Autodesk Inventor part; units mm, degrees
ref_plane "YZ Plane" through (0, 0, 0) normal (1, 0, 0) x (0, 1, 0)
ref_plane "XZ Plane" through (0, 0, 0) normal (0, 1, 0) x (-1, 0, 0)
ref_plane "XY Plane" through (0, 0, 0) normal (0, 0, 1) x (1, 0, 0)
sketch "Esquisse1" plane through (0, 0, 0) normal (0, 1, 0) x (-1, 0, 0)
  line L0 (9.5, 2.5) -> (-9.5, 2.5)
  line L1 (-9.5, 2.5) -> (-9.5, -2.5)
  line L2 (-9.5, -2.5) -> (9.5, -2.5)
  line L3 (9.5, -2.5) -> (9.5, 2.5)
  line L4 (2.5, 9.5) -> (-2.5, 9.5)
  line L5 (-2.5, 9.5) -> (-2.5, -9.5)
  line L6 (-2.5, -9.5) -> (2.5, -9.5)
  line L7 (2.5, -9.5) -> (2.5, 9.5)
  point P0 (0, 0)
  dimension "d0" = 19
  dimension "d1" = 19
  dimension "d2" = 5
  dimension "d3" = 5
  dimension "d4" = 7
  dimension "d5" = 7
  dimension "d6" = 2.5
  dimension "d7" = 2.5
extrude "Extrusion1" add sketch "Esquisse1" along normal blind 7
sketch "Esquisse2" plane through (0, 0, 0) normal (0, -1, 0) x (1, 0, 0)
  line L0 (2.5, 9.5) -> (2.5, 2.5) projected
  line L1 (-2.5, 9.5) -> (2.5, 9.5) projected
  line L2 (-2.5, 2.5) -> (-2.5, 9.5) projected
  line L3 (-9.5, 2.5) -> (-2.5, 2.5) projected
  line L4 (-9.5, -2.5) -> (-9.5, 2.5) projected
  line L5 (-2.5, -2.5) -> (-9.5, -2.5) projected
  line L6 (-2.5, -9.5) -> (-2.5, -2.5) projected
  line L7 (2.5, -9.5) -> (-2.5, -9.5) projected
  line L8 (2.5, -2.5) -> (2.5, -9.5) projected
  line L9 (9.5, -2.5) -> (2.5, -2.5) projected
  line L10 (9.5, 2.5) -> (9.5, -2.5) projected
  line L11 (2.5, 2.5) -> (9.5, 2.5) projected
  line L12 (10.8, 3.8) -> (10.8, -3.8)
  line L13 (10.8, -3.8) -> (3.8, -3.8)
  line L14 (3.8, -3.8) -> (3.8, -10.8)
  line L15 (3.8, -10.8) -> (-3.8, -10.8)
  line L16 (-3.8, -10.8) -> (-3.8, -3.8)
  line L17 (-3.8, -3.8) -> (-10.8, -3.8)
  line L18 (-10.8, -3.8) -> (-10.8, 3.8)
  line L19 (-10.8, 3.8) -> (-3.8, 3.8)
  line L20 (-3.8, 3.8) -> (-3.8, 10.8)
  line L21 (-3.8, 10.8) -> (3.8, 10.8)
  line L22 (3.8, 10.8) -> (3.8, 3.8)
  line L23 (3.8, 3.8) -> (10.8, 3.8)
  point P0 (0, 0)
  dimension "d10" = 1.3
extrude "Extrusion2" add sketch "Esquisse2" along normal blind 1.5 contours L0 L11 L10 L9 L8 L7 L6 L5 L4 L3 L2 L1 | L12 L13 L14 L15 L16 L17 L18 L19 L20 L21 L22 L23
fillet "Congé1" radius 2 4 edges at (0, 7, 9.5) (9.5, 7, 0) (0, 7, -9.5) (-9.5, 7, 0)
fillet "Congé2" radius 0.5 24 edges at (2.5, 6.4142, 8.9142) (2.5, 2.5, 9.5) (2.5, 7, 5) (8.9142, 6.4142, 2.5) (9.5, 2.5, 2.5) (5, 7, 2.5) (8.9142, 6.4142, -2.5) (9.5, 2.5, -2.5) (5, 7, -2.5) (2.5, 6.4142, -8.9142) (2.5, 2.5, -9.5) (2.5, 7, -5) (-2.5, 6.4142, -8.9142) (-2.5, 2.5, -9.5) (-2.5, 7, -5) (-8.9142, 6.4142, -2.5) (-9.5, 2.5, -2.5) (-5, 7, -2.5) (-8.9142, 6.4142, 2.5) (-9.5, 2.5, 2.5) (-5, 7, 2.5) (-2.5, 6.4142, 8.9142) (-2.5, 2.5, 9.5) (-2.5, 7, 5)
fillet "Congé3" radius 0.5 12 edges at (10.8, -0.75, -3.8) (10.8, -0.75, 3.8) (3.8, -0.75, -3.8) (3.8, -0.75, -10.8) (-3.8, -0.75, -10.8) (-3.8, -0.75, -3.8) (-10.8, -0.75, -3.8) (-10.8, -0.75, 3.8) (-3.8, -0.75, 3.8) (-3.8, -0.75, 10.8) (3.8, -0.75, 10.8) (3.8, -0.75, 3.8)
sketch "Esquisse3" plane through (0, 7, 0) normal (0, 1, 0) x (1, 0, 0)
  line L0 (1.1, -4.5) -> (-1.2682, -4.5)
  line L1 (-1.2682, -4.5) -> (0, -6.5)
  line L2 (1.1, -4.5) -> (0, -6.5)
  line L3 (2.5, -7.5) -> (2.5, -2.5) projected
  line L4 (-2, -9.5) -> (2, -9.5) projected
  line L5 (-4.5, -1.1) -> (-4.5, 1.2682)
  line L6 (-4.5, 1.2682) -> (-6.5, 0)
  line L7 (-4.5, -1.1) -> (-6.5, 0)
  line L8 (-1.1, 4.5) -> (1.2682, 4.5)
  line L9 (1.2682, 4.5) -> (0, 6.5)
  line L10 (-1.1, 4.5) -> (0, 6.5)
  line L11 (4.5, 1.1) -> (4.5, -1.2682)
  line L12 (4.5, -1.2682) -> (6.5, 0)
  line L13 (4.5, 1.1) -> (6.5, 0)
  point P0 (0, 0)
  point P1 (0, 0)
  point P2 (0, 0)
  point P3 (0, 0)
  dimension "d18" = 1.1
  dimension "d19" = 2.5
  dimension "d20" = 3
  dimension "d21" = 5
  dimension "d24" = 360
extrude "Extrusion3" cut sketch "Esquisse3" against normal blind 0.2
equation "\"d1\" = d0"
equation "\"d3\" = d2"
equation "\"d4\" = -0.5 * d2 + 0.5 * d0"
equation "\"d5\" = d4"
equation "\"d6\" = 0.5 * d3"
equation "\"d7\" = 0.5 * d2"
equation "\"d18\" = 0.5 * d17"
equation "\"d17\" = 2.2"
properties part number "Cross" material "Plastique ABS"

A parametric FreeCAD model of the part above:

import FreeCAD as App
import Part
import Sketcher


def edges_at(feature, points):
    """Names of the edges that pass closest to the given points."""
    edges = feature.Shape.Edges
    near = lambda p: min(range(len(edges)), key=lambda i: edges[i].distToShape(Part.Vertex(*p))[0])
    return sorted({f"Edge{near(p) + 1}" for p in points})


def add_polygon(sketch, points):
    """Adds a closed chain of lines whose ends are joined by coincident constraints."""
    first, n = sketch.GeometryCount, len(points)
    for a, b in zip(points, points[1:] + points[:1]):
        sketch.addGeometry(Part.LineSegment(App.Vector(*a, 0), App.Vector(*b, 0)), False)
    for i in range(n):
        sketch.addConstraint(Sketcher.Constraint("Coincident", first + i, 2, first + (i + 1) % n, 1))

doc = App.newDocument("Part")
body = doc.addObject("PartDesign::Body", "Body")

# Sketch on XZ plane
sketch1 = body.newObject("Sketcher::SketchObject", "Sketch")
sketch1.AttachmentSupport = (doc.getObject("XZ_Plane"), [""])
sketch1.MapMode = "FlatFace"
add_polygon(sketch1, [(-9.5, -2.5), (-9.5, 2.5), (-2.5, 2.5), (-2.5, 9.5), (2.5, 9.5), (2.5, 2.5), (9.5, 2.5), (9.5, -2.5), (2.5, -2.5), (2.5, -9.5), (-2.5, -9.5), (-2.5, -2.5)])  # lines 0-11
sketch1.addConstraint(Sketcher.Constraint("Vertical", 0))
sketch1.addConstraint(Sketcher.Constraint("Horizontal", 1))
sketch1.addConstraint(Sketcher.Constraint("Vertical", 2))
sketch1.addConstraint(Sketcher.Constraint("Horizontal", 3))
sketch1.addConstraint(Sketcher.Constraint("Vertical", 4))
sketch1.addConstraint(Sketcher.Constraint("Horizontal", 5))
sketch1.addConstraint(Sketcher.Constraint("Vertical", 6))
sketch1.addConstraint(Sketcher.Constraint("Horizontal", 7))
sketch1.addConstraint(Sketcher.Constraint("Vertical", 8))
sketch1.addConstraint(Sketcher.Constraint("Horizontal", 9))
sketch1.addConstraint(Sketcher.Constraint("Vertical", 10))
sketch1.addConstraint(Sketcher.Constraint("Horizontal", 11))
sketch1.addConstraint(Sketcher.Constraint("Symmetric", 0, 2, 6, 2, -1, 1))
sketch1.addConstraint(Sketcher.Constraint("Symmetric", 2, 2, 8, 2, -1, 1))
sketch1.addConstraint(Sketcher.Constraint("Symmetric", 4, 2, 10, 2, -1, 1))
sketch1.addConstraint(Sketcher.Constraint("Symmetric", 1, 2, 4, 2, -2))
sketch1.addConstraint(Sketcher.Constraint("Equal", 9, 0))
sketch1.addConstraint(Sketcher.Constraint("Equal", 11, 2))
sketch1.addConstraint(Sketcher.Constraint("DistanceX", 1, 1, 1, 2, 7.0))
sketch1.addConstraint(Sketcher.Constraint("DistanceX", 3, 1, 3, 2, 5.0))
pad1 = body.newObject("PartDesign::Pad", "Pad")
pad1.Profile = sketch1
pad1.Length = 7
pad1.Reversed = True

# Sketch on XZ plane
sketch2 = body.newObject("Sketcher::SketchObject", "Sketch001")
sketch2.AttachmentSupport = (doc.getObject("XZ_Plane"), [""])
sketch2.MapMode = "FlatFace"
add_polygon(sketch2, [(10.8, -3.8), (10.8, 3.8), (3.8, 3.8), (3.8, 10.8), (-3.8, 10.8), (-3.8, 3.8), (-10.8, 3.8), (-10.8, -3.8), (-3.8, -3.8), (-3.8, -10.8), (3.8, -10.8), (3.8, -3.8)])  # lines 0-11
sketch2.addConstraint(Sketcher.Constraint("Vertical", 0))
sketch2.addConstraint(Sketcher.Constraint("Horizontal", 1))
sketch2.addConstraint(Sketcher.Constraint("Vertical", 2))
sketch2.addConstraint(Sketcher.Constraint("Horizontal", 3))
sketch2.addConstraint(Sketcher.Constraint("Vertical", 4))
sketch2.addConstraint(Sketcher.Constraint("Horizontal", 5))
sketch2.addConstraint(Sketcher.Constraint("Vertical", 6))
sketch2.addConstraint(Sketcher.Constraint("Horizontal", 7))
sketch2.addConstraint(Sketcher.Constraint("Vertical", 8))
sketch2.addConstraint(Sketcher.Constraint("Horizontal", 9))
sketch2.addConstraint(Sketcher.Constraint("Vertical", 10))
sketch2.addConstraint(Sketcher.Constraint("Horizontal", 11))
sketch2.addConstraint(Sketcher.Constraint("Symmetric", 0, 2, 6, 2, -1, 1))
sketch2.addConstraint(Sketcher.Constraint("Symmetric", 2, 2, 8, 2, -1, 1))
sketch2.addConstraint(Sketcher.Constraint("Symmetric", 4, 2, 10, 2, -1, 1))
sketch2.addConstraint(Sketcher.Constraint("Symmetric", 1, 2, 4, 2, -2))
sketch2.addConstraint(Sketcher.Constraint("Equal", 9, 0))
sketch2.addConstraint(Sketcher.Constraint("Equal", 11, 2))
sketch2.addConstraint(Sketcher.Constraint("DistanceX", 1, 2, 1, 1, 7.0))
sketch2.addConstraint(Sketcher.Constraint("DistanceX", 3, 2, 3, 1, 7.6))
pad2 = body.newObject("PartDesign::Pad", "Pad001")
pad2.Profile = sketch2
pad2.Length = 1.5
doc.recompute()

fillet = body.newObject("PartDesign::Fillet", "Fillet")
fillet.Base = (pad2, edges_at(pad2, [
    (0, 7, 9.5),
    (9.5, 7, 0),
    (0, 7, -9.5),
    (-9.5, 7, 0),
]))
fillet.Radius = 2
doc.recompute()

fillet2 = body.newObject("PartDesign::Fillet", "Fillet001")
fillet2.Base = (fillet, edges_at(fillet, [
    (2.5, 6.414, 8.914),
    (2.5, 2.5, 9.5),
    (2.5, 7, 5),
    (8.914, 6.414, 2.5),
    (9.5, 2.5, 2.5),
    (5, 7, 2.5),
    (8.914, 6.414, -2.5),
    (9.5, 2.5, -2.5),
    (5, 7, -2.5),
    (2.5, 6.414, -8.914),
    (2.5, 2.5, -9.5),
    (2.5, 7, -5),
    (-2.5, 6.414, -8.914),
    (-2.5, 2.5, -9.5),
    (-2.5, 7, -5),
    (-8.914, 6.414, -2.5),
    (-9.5, 2.5, -2.5),
    (-5, 7, -2.5),
    (-8.914, 6.414, 2.5),
    (-9.5, 2.5, 2.5),
    (-5, 7, 2.5),
    (-2.5, 6.414, 8.914),
    (-2.5, 2.5, 9.5),
    (-2.5, 7, 5),
]))
fillet2.Radius = 0.5
doc.recompute()

fillet3 = body.newObject("PartDesign::Fillet", "Fillet002")
fillet3.Base = (fillet2, edges_at(fillet2, [
    (10.8, -0.75, -3.8),
    (10.8, -0.75, 3.8),
    (3.8, -0.75, -3.8),
    (3.8, -0.75, -10.8),
    (-3.8, -0.75, -10.8),
    (-3.8, -0.75, -3.8),
    (-10.8, -0.75, -3.8),
    (-10.8, -0.75, 3.8),
    (-3.8, -0.75, 3.8),
    (-3.8, -0.75, 10.8),
    (3.8, -0.75, 10.8),
    (3.8, -0.75, 3.8),
]))
fillet3.Radius = 0.5

# Sketch on XZ plane
sketch3 = body.newObject("Sketcher::SketchObject", "Sketch002")
sketch3.AttachmentSupport = (doc.getObject("XZ_Plane"), [""])
sketch3.MapMode = "FlatFace"
sketch3.AttachmentOffset = App.Placement(App.Vector(0, 0, -7), App.Rotation())
add_polygon(sketch3, [(0, 6.5), (1.1, 4.5), (-1.2682, 4.5)])  # lines 0-2
add_polygon(sketch3, [(-6.5, 0), (-4.5, 1.1), (-4.5, -1.2682)])  # lines 3-5
add_polygon(sketch3, [(0, -6.5), (-1.1, -4.5), (1.2682, -4.5)])  # lines 6-8
add_polygon(sketch3, [(6.5, 0), (4.5, -1.1), (4.5, 1.2682)])  # lines 9-11
sketch3.addConstraint(Sketcher.Constraint("Horizontal", 1))
sketch3.addConstraint(Sketcher.Constraint("Vertical", 4))
sketch3.addConstraint(Sketcher.Constraint("Horizontal", 7))
sketch3.addConstraint(Sketcher.Constraint("Vertical", 10))
sketch3.addConstraint(Sketcher.Constraint("Symmetric", 0, 2, 6, 2, -1, 1))
sketch3.addConstraint(Sketcher.Constraint("Symmetric", 2, 2, 8, 2, -1, 1))
sketch3.addConstraint(Sketcher.Constraint("Symmetric", 3, 2, 9, 2, -1, 1))
sketch3.addConstraint(Sketcher.Constraint("Symmetric", 5, 2, 11, 2, -1, 1))
sketch3.addConstraint(Sketcher.Constraint("PointOnObject", 2, 2, -2))
sketch3.addConstraint(Sketcher.Constraint("PointOnObject", 5, 2, -1))
sketch3.addConstraint(Sketcher.Constraint("Perpendicular", 0, 3))
sketch3.addConstraint(Sketcher.Constraint("Perpendicular", 2, 5))
sketch3.addConstraint(Sketcher.Constraint("Perpendicular", 5, 8))
sketch3.addConstraint(Sketcher.Constraint("Perpendicular", 8, 11))
sketch3.addConstraint(Sketcher.Constraint("Equal", 7, 4))
sketch3.addConstraint(Sketcher.Constraint("DistanceX", -1, 1, 0, 2, 1.1))
sketch3.addConstraint(Sketcher.Constraint("DistanceY", 0, 2, 2, 2, 2.0))
sketch3.addConstraint(Sketcher.Constraint("DistanceY", 6, 2, 1, 2, 9.0))
sketch3.addConstraint(Sketcher.Constraint("DistanceX", 3, 2, -1, 1, 4.5))
sketch3.addConstraint(Sketcher.Constraint("DistanceX", 1, 2, 1, 1, 2.3682))
pocket1 = body.newObject("PartDesign::Pocket", "Pocket")
pocket1.Profile = sketch3
pocket1.Length = 0.2
pocket1.Reversed = True

doc.recompute()
